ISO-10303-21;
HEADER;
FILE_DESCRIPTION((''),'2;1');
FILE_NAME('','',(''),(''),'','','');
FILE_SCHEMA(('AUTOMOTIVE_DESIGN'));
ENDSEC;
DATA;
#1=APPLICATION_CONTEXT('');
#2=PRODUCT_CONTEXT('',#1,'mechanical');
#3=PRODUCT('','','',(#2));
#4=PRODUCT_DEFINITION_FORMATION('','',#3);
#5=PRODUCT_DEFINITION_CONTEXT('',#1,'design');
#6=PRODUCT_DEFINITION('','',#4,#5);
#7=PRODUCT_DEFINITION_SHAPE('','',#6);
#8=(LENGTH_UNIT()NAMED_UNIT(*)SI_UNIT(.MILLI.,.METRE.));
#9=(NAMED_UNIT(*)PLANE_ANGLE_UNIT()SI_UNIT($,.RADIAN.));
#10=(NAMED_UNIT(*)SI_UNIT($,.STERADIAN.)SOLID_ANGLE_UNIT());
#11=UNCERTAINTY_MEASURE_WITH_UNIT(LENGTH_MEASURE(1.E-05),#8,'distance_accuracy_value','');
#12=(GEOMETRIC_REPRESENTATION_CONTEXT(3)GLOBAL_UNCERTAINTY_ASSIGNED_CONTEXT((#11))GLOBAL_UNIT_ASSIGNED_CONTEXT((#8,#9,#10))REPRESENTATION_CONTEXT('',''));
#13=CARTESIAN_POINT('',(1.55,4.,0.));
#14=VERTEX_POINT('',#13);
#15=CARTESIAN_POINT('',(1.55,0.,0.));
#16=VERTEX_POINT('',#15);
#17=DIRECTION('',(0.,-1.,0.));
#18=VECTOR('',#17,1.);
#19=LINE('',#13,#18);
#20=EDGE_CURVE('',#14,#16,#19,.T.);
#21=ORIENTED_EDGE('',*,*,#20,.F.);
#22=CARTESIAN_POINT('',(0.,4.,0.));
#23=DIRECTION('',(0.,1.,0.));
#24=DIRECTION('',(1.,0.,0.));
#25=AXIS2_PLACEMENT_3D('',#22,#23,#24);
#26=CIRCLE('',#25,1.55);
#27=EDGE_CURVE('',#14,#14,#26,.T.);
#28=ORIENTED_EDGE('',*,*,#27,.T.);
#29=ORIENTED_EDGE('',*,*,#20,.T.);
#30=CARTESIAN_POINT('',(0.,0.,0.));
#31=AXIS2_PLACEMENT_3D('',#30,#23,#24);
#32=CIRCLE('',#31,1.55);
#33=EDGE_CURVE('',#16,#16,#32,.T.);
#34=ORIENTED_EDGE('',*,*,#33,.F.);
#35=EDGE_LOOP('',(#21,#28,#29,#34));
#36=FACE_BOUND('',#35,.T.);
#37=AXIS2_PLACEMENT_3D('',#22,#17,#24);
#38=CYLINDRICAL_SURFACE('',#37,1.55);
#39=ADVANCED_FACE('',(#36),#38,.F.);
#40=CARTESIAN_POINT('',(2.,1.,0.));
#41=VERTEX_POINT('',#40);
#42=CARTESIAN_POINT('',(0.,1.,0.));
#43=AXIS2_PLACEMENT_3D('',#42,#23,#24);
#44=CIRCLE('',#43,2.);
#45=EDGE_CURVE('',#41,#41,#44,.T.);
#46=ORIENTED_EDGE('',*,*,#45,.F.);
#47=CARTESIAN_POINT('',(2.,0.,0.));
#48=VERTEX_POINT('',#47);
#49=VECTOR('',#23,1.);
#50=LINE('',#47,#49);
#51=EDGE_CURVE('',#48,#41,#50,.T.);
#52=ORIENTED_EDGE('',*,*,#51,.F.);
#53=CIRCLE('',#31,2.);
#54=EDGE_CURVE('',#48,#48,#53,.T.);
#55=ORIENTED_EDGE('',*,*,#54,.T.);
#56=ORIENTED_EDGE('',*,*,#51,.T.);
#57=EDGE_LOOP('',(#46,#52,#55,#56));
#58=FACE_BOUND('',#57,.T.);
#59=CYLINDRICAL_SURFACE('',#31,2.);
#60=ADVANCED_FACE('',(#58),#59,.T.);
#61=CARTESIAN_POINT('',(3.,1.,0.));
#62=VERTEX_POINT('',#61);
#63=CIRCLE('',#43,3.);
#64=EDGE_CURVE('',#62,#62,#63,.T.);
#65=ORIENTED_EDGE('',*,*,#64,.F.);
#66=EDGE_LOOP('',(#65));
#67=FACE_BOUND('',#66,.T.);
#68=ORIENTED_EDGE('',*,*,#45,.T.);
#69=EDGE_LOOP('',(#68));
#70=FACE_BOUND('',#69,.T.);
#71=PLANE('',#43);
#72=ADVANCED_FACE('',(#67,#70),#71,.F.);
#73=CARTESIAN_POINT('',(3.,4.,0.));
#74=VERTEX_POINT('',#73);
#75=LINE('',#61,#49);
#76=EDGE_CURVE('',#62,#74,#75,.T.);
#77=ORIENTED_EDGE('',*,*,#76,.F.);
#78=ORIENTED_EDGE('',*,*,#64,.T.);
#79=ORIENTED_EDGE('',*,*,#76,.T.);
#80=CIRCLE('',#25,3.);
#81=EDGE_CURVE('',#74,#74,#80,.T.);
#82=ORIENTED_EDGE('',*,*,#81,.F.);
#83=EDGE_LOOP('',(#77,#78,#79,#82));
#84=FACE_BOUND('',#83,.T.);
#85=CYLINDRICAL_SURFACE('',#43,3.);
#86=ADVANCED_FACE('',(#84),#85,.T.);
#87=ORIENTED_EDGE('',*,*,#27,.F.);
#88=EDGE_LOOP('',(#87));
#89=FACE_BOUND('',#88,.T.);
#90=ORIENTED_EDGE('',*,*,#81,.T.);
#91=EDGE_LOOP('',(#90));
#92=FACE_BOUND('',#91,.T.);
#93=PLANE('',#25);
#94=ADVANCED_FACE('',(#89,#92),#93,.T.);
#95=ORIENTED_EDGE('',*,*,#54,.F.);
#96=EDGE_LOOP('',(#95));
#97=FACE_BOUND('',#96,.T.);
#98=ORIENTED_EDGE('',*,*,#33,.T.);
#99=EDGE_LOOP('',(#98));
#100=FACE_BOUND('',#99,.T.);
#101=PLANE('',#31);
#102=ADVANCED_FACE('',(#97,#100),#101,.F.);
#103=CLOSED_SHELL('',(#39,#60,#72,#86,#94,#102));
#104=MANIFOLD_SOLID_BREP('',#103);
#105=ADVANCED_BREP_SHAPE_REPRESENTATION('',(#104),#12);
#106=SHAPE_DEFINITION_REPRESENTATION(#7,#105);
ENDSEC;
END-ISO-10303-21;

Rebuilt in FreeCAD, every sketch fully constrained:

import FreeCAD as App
import Part
import Sketcher
from FreeCAD import Vector
Q = App.Units.Quantity

doc = App.newDocument("Part")
body = doc.addObject("PartDesign::Body", "Body")

sketch1 = body.newObject("Sketcher::SketchObject", "Sketch")
sketch1.AttachmentSupport = (doc.getObject("XY_Plane"), [""])
sketch1.MapMode = "FlatFace"
sketch1.addGeometry([
    Part.LineSegment(Vector(1.55, 0, 0), Vector(2, 0, 0)),
    Part.LineSegment(Vector(2, 0, 0), Vector(2, 1, 0)),
    Part.LineSegment(Vector(2, 1, 0), Vector(3, 1, 0)),
    Part.LineSegment(Vector(3, 1, 0), Vector(3, 4, 0)),
    Part.LineSegment(Vector(3, 4, 0), Vector(1.55, 4, 0)),
    Part.LineSegment(Vector(1.55, 4, 0), Vector(1.55, 0, 0)),
], False)
sketch1.addConstraint([
    Sketcher.Constraint("Coincident", 0, 2, 1, 1),
    Sketcher.Constraint("Coincident", 1, 2, 2, 1),
    Sketcher.Constraint("Coincident", 2, 2, 3, 1),
    Sketcher.Constraint("Coincident", 3, 2, 4, 1),
    Sketcher.Constraint("Coincident", 4, 2, 5, 1),
    Sketcher.Constraint("Coincident", 5, 2, 0, 1),
    Sketcher.Constraint("Horizontal", 0),
    Sketcher.Constraint("Vertical", 1),
    Sketcher.Constraint("Horizontal", 2),
    Sketcher.Constraint("Vertical", 3),
    Sketcher.Constraint("Horizontal", 4),
    Sketcher.Constraint("Vertical", 5),
    Sketcher.Constraint("PointOnObject", 0, 2, -1),
    Sketcher.Constraint("Equal", 2, 1),
    Sketcher.Constraint("DistanceX", 2, 1, 2, 2, Q("1 mm")),
    Sketcher.Constraint("DistanceY", 3, 1, 3, 2, Q("3 mm")),
    Sketcher.Constraint("DistanceX", -1, 1, 2, 2, Q("3 mm")),
    Sketcher.Constraint("DistanceX", 0, 1, 0, 2, Q("0.45 mm")),
])
revolution = body.newObject("PartDesign::Revolution", "Revolution")
revolution.Profile = sketch1
revolution.ReferenceAxis = (sketch1, ["V_Axis"])
revolution.Angle = 360

doc.recompute()
